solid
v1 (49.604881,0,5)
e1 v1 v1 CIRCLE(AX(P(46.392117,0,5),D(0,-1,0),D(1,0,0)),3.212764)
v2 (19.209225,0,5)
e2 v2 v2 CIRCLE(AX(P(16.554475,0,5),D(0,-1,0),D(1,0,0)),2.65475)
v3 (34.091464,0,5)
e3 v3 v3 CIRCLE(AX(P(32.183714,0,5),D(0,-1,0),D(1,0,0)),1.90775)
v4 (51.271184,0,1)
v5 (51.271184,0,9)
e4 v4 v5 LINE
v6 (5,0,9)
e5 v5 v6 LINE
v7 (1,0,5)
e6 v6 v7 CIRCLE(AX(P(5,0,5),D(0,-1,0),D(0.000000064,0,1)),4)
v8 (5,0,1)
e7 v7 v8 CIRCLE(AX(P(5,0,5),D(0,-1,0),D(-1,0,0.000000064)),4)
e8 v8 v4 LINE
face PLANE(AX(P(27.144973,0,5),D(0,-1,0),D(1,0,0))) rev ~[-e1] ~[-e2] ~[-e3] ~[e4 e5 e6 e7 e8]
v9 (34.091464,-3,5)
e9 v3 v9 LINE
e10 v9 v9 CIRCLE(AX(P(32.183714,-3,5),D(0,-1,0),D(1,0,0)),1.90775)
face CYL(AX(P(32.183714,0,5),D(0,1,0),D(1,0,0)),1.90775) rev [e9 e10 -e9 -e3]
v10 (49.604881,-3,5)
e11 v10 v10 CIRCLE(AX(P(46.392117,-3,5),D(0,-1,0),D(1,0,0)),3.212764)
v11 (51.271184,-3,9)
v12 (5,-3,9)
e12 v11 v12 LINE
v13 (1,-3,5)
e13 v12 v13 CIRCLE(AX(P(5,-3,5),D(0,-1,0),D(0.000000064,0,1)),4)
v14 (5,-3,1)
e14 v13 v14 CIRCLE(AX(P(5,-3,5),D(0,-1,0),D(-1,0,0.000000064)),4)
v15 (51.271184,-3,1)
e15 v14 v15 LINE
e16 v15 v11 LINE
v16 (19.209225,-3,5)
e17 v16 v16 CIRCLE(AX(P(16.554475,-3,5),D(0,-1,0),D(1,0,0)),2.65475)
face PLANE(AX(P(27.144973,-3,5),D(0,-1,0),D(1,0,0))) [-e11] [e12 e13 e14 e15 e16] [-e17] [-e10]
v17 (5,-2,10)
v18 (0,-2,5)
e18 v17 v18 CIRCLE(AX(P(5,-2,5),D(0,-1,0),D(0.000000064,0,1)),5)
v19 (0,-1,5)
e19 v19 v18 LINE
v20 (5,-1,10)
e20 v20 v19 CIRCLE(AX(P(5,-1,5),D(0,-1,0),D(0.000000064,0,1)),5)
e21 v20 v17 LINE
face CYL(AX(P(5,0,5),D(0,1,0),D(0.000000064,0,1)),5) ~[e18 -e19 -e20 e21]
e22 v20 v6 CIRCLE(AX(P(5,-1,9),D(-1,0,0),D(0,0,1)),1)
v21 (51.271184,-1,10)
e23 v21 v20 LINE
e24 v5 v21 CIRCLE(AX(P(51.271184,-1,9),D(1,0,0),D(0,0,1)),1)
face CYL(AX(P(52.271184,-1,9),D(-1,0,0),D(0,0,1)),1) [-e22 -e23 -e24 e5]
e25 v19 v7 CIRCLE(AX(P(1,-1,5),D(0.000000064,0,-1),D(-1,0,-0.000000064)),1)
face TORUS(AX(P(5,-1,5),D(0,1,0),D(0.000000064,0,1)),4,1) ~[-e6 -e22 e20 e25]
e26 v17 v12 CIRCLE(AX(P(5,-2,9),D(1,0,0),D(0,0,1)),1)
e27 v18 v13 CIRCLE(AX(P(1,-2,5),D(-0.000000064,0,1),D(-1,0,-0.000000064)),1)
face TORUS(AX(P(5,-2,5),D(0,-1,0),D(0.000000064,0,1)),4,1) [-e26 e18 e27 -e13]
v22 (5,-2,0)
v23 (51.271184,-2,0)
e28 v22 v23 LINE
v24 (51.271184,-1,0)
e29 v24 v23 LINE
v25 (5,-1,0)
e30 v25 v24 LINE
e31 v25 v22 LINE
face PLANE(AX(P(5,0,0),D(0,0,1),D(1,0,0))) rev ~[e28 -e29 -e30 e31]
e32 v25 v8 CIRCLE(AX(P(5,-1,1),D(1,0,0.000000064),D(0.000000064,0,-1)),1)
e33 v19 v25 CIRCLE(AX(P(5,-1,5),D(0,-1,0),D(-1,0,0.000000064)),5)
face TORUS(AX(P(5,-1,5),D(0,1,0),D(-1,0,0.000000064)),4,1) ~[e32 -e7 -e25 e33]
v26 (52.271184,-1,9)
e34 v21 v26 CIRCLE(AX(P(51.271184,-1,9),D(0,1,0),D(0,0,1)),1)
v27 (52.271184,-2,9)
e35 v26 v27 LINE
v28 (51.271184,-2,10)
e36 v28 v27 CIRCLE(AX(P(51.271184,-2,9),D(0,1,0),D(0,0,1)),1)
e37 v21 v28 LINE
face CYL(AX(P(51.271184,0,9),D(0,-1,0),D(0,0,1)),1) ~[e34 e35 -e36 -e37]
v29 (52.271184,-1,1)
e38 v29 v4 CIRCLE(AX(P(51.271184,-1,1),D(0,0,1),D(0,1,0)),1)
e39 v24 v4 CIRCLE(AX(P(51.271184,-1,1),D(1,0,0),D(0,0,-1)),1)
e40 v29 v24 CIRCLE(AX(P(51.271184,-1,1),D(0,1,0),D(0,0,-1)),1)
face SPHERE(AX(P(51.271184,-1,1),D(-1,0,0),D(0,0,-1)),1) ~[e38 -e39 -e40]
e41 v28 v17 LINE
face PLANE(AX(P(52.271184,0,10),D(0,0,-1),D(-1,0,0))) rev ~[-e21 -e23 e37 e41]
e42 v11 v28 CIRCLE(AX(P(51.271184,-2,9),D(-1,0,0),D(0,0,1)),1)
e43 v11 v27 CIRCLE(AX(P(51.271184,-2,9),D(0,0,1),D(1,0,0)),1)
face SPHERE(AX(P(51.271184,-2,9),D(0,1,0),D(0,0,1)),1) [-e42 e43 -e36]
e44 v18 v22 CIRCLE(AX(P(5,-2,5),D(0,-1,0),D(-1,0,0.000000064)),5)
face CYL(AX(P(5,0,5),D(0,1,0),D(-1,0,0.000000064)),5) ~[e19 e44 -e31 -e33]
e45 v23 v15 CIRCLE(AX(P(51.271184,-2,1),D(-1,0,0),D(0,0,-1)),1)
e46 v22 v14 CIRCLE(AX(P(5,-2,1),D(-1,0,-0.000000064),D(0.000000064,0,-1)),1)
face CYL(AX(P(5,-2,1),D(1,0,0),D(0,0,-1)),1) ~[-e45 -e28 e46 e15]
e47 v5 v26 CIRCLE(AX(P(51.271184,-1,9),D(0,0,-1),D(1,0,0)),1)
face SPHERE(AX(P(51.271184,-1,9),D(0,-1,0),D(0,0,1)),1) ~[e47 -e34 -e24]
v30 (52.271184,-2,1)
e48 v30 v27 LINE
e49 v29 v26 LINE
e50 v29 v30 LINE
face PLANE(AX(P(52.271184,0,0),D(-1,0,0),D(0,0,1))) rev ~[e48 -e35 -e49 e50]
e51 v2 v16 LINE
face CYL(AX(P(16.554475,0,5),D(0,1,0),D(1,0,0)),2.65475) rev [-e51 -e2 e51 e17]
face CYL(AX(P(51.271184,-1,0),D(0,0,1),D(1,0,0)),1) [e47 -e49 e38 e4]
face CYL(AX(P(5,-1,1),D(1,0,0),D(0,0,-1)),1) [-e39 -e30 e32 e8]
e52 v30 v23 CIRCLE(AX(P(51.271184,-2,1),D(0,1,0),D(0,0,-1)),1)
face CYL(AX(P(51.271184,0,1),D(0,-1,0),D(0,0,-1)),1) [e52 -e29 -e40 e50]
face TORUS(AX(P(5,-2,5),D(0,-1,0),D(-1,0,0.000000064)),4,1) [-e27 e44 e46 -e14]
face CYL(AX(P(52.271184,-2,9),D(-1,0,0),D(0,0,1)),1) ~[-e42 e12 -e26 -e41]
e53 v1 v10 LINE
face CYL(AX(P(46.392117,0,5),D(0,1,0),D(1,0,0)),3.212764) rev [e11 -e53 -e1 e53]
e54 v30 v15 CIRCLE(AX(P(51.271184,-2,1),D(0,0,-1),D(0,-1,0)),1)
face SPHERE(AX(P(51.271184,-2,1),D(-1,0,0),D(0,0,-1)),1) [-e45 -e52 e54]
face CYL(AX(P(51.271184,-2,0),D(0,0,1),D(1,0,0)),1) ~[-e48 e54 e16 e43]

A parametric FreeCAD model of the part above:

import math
import FreeCAD as App
import Part
import Sketcher

V = App.Vector


def edges_at(feature, points):
    """Names of the edges that pass closest to the given points."""
    edges = feature.Shape.Edges
    near = lambda p: min(range(len(edges)), key=lambda i: edges[i].distToShape(Part.Vertex(*p))[0])
    return sorted({f"Edge{near(p) + 1}" for p in points})

doc = App.newDocument("Part")
body = doc.addObject("PartDesign::Body", "Body")

# Sketch on XZ plane
sketch1 = body.newObject("Sketcher::SketchObject", "Sketch")
sketch1.AttachmentSupport = (doc.getObject("XZ_Plane"), [""])
sketch1.MapMode = "FlatFace"
sketch1.addGeometry([
    Part.ArcOfCircle(Part.Circle(V(5, 5, 0), V(0, 0, 1), 5), math.radians(180), math.radians(270)),  # 0
    Part.LineSegment(V(5, 0, 0), V(52.3, 0, 0)),  # 1
    Part.LineSegment(V(52.3, 0, 0), V(52.3, 10, 0)),  # 2
    Part.LineSegment(V(52.3, 10, 0), V(5, 10, 0)),  # 3
    Part.ArcOfCircle(Part.Circle(V(5, 5, 0), V(0, 0, 1), 5), math.radians(90), math.radians(180)),  # 4
    Part.Circle(V(16.6, 5, 0), V(0, 0, 1), 2.7),  # 5
    Part.Circle(V(32.2, 5, 0), V(0, 0, 1), 1.9),  # 6
    Part.Circle(V(46.4, 5, 0), V(0, 0, 1), 3.2),  # 7
], False)
sketch1.addConstraint([
    Sketcher.Constraint("Tangent", 0, 2, 1, 1),
    Sketcher.Constraint("Coincident", 1, 2, 2, 1),
    Sketcher.Constraint("Coincident", 2, 2, 3, 1),
    Sketcher.Constraint("Tangent", 3, 2, 4, 1),
    Sketcher.Constraint("Tangent", 4, 2, 0, 1),
    Sketcher.Constraint("Horizontal", 1),
    Sketcher.Constraint("Vertical", 2),
    Sketcher.Constraint("Horizontal", 3),
    Sketcher.Constraint("Equal", 0, 4),
    Sketcher.Constraint("PointOnObject", 0, 2, -1),
    Sketcher.Constraint("PointOnObject", 4, 2, -2),
    Sketcher.Constraint("Horizontal", 4, 3, 5, 3),
    Sketcher.Constraint("Horizontal", 5, 3, 6, 3),
    Sketcher.Constraint("Horizontal", 6, 3, 7, 3),
    Sketcher.Constraint("Horizontal", 7, 3, 4, 2),
    Sketcher.Constraint("Radius", 0, 5.0),
    Sketcher.Constraint("Diameter", 5, 5.3095),
    Sketcher.Constraint("Diameter", 6, 3.8155),
    Sketcher.Constraint("Diameter", 7, 6.425528),
    Sketcher.Constraint("DistanceX", 1, 1, 1, 2, 47.271184),
    Sketcher.Constraint("DistanceX", 5, 3, 6, 3, 15.629239),
    Sketcher.Constraint("DistanceX", 5, 3, 7, 3, 29.837642),
    Sketcher.Constraint("DistanceX", 6, 3, 1, 2, 20.08747),
])
pad1 = body.newObject("PartDesign::Pad", "Pad")
pad1.Profile = sketch1
pad1.Length = 3
doc.recompute()

fillet = body.newObject("PartDesign::Fillet", "Fillet")
fillet.Base = (pad1, edges_at(pad1, [
    (52.271, -1.5, 10),
    (5, -1.5, 10),
    (28.636, 0, 10),
    (28.636, -3, 10),
    (52.271, -1.5, 0),
    (52.271, 0, 5),
    (52.271, -3, 5),
]))
fillet.Radius = 1

doc.recompute()
